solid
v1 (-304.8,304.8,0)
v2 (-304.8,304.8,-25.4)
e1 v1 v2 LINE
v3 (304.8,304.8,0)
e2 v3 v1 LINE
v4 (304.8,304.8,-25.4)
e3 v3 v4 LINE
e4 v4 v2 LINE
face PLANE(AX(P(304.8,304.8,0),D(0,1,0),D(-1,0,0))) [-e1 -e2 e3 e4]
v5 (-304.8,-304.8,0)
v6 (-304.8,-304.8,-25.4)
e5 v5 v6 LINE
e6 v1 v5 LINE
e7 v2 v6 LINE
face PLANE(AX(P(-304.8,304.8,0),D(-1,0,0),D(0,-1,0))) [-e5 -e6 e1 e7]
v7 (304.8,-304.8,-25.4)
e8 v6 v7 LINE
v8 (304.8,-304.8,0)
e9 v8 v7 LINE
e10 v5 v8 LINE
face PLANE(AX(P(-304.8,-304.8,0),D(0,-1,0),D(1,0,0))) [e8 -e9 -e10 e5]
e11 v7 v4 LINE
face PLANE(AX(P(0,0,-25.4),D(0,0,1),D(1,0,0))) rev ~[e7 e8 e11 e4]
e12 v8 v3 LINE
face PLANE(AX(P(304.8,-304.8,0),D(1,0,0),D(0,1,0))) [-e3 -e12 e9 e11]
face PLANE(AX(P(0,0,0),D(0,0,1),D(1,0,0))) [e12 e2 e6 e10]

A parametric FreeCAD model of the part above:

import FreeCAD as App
import Part
import Sketcher
Q = App.Units.Quantity


def add_polygon(sketch, points):
    """Adds a closed chain of lines whose ends are joined by coincident constraints."""
    first, n = sketch.GeometryCount, len(points)
    for a, b in zip(points, points[1:] + points[:1]):
        sketch.addGeometry(Part.LineSegment(App.Vector(*a, 0), App.Vector(*b, 0)), False)
    for i in range(n):
        sketch.addConstraint(Sketcher.Constraint("Coincident", first + i, 2, first + (i + 1) % n, 1))

doc = App.newDocument("Part")
body = doc.addObject("PartDesign::Body", "Body")

sketch1 = body.newObject("Sketcher::SketchObject", "Sketch")
sketch1.AttachmentSupport = (doc.getObject("XY_Plane"), [""])
sketch1.MapMode = "FlatFace"
add_polygon(sketch1, [(-304.8, 304.8), (-304.8, -304.8), (304.8, -304.8), (304.8, 304.8)])
sketch1.addConstraint([
    Sketcher.Constraint("Vertical", 0),
    Sketcher.Constraint("Horizontal", 1),
    Sketcher.Constraint("Vertical", 2),
    Sketcher.Constraint("Horizontal", 3),
    Sketcher.Constraint("Symmetric", 0, 2, 2, 2, -1, 1),
    Sketcher.Constraint("Equal", 3, 0),
    Sketcher.Constraint("DistanceX", 1, 1, 1, 2, Q("24 in")),
])
pad1 = body.newObject("PartDesign::Pad", "Pad")
pad1.Profile = sketch1
pad1.Length = Q("1 in")
pad1.Reversed = True

doc.recompute()
